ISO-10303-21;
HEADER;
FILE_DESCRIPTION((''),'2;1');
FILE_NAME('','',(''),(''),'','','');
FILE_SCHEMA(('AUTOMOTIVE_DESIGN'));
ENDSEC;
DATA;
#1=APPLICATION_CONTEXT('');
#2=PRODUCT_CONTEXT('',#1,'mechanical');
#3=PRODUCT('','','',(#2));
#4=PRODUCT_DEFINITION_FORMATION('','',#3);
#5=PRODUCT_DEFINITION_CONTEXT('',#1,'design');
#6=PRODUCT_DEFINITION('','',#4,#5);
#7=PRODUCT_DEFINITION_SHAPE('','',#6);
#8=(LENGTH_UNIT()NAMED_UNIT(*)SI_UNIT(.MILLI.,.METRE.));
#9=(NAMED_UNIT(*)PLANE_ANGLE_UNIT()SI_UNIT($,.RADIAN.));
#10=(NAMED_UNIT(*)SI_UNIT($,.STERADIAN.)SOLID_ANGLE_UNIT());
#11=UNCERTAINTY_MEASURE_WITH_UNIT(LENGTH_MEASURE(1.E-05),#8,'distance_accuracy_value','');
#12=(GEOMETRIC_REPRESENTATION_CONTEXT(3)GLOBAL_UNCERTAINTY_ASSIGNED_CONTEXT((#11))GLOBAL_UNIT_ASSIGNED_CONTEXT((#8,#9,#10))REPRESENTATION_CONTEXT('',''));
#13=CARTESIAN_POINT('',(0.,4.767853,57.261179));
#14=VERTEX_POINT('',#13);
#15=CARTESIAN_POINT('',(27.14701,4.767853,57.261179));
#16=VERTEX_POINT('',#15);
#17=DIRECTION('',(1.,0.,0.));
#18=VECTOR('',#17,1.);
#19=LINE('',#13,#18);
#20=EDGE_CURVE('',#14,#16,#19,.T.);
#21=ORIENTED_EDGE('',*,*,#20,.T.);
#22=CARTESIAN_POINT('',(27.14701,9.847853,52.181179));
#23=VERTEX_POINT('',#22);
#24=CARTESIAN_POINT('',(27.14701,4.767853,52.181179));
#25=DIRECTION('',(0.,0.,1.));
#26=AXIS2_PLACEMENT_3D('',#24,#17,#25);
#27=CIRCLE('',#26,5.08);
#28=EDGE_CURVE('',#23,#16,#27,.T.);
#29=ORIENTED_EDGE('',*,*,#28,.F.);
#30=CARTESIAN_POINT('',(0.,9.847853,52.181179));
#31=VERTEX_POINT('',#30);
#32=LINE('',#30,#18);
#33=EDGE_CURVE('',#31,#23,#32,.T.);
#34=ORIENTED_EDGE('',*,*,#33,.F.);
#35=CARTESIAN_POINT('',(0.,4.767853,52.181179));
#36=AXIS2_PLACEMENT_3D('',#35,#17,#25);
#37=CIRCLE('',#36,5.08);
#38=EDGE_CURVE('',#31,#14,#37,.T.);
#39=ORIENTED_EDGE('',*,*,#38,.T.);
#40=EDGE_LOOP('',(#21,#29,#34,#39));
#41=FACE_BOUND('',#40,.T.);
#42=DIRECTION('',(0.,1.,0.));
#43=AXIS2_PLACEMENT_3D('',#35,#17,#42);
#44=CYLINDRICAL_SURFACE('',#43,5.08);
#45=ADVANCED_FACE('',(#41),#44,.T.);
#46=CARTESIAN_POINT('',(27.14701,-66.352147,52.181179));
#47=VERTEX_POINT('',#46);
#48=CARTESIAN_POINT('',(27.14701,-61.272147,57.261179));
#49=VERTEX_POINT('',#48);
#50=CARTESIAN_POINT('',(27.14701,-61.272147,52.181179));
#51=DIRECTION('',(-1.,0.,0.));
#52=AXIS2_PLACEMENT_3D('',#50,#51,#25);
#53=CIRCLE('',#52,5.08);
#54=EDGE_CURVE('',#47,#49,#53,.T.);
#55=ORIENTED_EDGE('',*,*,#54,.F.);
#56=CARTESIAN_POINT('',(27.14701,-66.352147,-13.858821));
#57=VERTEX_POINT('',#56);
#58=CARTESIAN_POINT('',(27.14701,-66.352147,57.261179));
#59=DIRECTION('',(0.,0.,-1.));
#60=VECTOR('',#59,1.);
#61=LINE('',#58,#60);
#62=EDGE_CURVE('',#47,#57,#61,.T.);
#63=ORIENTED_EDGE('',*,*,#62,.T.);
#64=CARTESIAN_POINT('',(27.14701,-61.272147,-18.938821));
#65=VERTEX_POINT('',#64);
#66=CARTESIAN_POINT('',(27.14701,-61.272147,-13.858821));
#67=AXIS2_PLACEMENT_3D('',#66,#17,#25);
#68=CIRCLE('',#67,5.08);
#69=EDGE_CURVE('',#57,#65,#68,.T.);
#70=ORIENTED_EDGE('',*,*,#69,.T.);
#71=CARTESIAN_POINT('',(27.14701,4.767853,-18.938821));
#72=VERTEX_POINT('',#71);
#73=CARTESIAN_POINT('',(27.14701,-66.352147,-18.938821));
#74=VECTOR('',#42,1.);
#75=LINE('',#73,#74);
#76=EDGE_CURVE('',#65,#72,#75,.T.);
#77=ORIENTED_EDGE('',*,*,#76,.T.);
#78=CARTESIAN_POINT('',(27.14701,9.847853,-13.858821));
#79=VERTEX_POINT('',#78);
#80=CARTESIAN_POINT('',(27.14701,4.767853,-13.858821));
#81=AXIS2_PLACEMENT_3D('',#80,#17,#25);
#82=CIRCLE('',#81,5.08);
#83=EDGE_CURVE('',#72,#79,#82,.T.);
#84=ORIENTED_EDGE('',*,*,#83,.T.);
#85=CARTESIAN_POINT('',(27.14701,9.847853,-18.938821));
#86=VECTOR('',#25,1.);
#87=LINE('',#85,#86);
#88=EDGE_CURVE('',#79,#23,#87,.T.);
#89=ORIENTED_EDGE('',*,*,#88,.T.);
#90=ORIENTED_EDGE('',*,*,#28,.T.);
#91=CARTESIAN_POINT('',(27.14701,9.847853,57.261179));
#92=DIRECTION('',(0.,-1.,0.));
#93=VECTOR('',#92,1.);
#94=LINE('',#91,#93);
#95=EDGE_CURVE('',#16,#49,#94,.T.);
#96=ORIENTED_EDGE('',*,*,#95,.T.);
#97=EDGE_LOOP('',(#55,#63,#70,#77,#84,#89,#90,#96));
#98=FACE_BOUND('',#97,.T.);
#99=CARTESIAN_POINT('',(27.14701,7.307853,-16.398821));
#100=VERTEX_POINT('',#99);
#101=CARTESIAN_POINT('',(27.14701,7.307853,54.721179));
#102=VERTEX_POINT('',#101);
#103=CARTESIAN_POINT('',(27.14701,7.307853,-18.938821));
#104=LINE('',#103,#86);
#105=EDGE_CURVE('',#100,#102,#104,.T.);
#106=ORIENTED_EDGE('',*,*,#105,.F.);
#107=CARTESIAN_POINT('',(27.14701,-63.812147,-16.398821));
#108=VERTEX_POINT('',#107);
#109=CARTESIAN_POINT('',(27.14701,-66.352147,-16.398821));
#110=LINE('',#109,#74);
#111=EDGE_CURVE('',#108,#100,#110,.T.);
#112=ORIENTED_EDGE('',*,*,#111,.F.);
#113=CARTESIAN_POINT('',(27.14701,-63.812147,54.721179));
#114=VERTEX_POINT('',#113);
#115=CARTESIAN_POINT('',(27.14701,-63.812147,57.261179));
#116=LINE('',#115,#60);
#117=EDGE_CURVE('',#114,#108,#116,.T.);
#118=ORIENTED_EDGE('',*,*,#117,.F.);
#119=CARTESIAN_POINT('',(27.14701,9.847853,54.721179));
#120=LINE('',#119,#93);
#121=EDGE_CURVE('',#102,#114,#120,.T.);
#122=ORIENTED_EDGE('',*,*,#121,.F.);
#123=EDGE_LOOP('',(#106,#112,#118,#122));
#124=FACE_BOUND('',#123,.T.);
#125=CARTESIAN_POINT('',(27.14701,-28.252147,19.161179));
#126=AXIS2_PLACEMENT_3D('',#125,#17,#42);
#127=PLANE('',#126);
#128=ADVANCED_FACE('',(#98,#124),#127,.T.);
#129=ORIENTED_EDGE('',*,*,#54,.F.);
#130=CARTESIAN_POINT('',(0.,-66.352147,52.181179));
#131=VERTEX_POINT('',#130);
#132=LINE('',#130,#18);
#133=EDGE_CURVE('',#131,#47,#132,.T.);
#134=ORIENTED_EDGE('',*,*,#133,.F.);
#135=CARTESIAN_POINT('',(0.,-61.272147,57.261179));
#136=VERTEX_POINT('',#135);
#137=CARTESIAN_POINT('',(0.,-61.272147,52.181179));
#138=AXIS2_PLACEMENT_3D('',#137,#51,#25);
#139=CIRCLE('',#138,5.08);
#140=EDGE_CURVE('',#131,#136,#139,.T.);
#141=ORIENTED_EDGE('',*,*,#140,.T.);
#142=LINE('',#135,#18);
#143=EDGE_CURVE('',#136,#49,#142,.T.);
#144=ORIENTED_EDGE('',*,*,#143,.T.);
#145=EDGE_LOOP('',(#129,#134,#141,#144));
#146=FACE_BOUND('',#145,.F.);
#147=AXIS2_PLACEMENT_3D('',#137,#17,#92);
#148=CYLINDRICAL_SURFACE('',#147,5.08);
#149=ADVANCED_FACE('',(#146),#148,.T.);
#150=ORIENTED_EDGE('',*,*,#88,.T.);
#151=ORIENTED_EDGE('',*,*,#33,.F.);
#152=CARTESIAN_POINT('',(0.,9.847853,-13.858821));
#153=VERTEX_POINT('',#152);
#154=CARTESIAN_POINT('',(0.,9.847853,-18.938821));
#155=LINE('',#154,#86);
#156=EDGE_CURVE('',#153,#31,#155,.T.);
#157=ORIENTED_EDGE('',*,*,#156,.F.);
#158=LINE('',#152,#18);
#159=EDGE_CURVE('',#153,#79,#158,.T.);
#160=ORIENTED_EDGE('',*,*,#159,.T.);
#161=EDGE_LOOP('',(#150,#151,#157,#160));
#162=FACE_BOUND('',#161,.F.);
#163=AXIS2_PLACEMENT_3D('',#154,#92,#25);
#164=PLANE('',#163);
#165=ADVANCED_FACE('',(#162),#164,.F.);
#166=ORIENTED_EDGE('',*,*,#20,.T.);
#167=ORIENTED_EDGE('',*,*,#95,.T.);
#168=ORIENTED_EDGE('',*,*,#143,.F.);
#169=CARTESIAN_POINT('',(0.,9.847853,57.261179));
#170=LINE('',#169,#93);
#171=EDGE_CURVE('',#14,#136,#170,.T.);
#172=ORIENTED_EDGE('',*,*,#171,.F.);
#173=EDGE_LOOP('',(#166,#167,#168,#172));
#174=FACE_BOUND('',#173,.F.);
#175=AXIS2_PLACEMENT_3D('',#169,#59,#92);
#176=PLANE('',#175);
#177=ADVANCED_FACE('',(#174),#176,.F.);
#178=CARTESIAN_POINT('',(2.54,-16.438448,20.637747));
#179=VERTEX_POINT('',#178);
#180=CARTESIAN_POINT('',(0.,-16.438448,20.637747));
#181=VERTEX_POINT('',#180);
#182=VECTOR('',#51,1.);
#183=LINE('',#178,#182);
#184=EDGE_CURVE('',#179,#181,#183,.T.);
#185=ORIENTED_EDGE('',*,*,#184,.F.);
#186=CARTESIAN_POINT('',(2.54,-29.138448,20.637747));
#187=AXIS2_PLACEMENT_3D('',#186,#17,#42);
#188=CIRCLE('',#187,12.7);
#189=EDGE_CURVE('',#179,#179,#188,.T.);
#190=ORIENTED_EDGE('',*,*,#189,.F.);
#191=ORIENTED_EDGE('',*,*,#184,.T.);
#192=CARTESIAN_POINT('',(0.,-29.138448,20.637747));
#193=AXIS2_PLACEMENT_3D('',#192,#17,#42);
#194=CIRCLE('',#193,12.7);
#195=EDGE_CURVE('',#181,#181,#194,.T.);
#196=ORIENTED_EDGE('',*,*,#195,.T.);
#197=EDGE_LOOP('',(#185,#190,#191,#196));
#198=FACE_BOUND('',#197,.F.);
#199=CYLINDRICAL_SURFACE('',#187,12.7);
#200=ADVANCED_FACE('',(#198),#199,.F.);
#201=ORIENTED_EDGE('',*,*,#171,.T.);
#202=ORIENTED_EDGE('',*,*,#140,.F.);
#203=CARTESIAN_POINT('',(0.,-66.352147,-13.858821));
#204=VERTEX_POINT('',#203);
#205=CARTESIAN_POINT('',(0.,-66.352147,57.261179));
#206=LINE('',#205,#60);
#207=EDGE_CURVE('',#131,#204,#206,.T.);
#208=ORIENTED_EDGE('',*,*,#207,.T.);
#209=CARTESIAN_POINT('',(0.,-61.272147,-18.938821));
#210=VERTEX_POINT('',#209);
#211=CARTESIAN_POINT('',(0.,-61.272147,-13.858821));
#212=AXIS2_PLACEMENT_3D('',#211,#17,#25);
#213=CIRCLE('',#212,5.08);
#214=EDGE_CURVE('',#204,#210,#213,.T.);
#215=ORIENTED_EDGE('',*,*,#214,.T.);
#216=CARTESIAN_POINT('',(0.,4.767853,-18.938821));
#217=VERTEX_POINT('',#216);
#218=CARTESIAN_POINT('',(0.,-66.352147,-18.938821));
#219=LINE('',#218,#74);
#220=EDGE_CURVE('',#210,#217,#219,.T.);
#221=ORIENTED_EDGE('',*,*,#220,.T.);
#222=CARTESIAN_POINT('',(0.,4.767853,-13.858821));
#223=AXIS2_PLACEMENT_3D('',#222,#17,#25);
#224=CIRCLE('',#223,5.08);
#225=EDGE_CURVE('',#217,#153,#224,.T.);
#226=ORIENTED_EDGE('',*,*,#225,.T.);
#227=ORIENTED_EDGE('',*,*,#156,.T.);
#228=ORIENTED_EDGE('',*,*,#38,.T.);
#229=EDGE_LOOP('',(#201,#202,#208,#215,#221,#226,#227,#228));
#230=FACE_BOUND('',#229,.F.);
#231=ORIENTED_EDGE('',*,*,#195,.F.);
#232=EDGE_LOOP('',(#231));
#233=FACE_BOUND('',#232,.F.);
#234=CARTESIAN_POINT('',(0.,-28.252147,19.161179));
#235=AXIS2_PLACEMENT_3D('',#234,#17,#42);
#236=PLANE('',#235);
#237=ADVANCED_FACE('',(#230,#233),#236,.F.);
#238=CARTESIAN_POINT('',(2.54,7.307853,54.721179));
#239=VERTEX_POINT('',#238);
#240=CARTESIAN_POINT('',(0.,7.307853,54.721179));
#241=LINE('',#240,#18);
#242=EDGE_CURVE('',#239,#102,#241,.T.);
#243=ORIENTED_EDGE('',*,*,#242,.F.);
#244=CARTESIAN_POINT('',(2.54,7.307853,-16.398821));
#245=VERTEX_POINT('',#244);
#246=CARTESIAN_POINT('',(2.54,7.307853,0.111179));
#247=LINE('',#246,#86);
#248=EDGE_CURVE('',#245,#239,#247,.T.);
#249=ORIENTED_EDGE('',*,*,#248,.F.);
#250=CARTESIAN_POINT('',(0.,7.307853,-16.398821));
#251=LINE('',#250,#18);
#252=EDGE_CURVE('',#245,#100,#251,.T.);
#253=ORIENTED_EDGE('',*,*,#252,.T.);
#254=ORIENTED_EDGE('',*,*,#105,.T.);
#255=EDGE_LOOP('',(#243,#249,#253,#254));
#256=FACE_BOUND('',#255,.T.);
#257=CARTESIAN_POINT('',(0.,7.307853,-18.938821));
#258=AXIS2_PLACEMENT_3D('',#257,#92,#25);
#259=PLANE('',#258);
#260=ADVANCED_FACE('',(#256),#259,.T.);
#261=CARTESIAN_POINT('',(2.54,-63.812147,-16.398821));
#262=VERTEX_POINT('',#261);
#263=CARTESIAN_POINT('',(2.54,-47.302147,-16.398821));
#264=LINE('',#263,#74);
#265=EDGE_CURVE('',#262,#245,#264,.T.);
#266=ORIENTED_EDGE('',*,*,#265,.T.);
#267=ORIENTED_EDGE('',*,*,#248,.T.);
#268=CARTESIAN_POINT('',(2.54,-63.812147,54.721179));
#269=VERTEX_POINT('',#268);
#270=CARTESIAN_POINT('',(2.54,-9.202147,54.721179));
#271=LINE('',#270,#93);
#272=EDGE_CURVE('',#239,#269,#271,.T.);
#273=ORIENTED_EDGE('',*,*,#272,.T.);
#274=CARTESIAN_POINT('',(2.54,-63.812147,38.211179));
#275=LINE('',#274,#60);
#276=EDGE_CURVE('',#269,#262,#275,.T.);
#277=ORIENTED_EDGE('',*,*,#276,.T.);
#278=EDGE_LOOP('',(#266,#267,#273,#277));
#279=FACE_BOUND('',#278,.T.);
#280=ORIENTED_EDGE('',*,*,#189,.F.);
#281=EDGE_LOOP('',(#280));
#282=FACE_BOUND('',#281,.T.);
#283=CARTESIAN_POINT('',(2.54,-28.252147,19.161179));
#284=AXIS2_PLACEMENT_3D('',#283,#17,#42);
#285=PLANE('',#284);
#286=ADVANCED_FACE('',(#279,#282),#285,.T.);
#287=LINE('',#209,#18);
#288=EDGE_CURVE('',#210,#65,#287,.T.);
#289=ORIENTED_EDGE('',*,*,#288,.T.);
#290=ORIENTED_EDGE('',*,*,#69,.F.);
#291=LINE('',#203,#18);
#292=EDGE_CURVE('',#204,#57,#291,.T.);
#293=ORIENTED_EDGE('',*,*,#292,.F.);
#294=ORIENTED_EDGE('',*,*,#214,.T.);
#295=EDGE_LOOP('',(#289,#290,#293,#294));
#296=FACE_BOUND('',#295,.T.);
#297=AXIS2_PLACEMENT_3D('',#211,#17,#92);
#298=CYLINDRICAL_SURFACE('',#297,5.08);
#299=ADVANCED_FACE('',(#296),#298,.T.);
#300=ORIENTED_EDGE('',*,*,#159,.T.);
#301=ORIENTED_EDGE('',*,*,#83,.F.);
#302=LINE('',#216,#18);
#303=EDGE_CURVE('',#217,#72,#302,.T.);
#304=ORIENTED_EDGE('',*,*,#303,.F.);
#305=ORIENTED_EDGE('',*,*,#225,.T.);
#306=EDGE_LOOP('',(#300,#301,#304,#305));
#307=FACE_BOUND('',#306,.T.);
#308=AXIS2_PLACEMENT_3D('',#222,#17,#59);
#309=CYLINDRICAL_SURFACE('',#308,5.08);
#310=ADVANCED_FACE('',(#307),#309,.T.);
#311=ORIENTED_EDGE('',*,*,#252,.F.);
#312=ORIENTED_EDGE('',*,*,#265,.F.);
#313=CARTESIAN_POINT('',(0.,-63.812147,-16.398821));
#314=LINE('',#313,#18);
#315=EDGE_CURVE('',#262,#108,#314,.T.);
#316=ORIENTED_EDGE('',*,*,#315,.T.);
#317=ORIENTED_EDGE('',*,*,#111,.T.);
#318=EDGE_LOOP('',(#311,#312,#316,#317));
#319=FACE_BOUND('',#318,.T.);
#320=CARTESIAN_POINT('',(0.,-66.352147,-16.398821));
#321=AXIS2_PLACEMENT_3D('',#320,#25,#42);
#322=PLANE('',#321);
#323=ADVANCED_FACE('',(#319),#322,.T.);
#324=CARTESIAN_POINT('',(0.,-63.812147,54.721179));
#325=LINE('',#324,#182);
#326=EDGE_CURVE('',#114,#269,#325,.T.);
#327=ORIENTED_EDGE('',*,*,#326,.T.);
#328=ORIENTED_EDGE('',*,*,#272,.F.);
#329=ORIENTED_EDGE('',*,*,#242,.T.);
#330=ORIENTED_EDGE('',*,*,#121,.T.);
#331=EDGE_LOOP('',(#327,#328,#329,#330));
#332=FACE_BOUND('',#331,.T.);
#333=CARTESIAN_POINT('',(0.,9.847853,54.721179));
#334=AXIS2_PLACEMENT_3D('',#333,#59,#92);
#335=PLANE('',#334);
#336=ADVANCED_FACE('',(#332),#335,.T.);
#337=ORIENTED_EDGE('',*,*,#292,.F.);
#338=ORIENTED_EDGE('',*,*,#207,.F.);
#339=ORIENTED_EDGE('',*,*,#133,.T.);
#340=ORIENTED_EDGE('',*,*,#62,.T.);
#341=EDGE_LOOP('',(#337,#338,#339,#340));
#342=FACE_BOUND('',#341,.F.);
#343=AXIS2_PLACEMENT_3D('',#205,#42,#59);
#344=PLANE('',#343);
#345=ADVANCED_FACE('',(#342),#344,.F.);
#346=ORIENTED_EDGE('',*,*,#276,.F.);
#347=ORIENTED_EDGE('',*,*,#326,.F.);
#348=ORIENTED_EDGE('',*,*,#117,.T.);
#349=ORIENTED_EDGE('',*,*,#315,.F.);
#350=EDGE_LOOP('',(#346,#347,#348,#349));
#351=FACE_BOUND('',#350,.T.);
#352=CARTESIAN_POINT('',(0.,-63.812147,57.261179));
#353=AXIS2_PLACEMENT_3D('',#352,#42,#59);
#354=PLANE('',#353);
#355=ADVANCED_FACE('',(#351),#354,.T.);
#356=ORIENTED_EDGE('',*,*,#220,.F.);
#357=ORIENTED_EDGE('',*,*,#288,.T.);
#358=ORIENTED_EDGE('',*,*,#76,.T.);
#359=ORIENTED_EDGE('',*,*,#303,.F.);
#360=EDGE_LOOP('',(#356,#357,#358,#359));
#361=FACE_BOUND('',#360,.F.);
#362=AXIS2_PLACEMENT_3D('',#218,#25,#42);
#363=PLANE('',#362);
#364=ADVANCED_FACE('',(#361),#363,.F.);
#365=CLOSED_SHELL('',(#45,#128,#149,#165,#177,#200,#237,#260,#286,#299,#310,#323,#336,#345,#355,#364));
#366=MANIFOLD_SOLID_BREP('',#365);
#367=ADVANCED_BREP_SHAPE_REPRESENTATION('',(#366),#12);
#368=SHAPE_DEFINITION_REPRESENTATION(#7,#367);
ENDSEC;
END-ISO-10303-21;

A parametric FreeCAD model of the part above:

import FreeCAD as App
import Part
import Sketcher
Q = App.Units.Quantity


def edges_at(feature, points):
    """Names of the edges that pass closest to the given points."""
    edges = feature.Shape.Edges
    near = lambda p: min(range(len(edges)), key=lambda i: edges[i].distToShape(Part.Vertex(*p))[0])
    return sorted({f"Edge{near(p) + 1}" for p in points})


def faces_at(feature, points):
    """Names of the faces that lie closest to the given points."""
    faces = feature.Shape.Faces
    near = lambda p: min(range(len(faces)), key=lambda i: faces[i].distToShape(Part.Vertex(*p))[0])
    return sorted({f"Face{near(p) + 1}" for p in points})


def add_polygon(sketch, points):
    """Adds a closed chain of lines whose ends are joined by coincident constraints."""
    first, n = sketch.GeometryCount, len(points)
    for a, b in zip(points, points[1:] + points[:1]):
        sketch.addGeometry(Part.LineSegment(App.Vector(*a, 0), App.Vector(*b, 0)), False)
    for i in range(n):
        sketch.addConstraint(Sketcher.Constraint("Coincident", first + i, 2, first + (i + 1) % n, 1))

doc = App.newDocument("Part")
body = doc.addObject("PartDesign::Body", "Body")

# Sketch on YZ plane
sketch1 = doc.addObject("Sketcher::SketchObject", "Sketch")
body.addObject(sketch1)
sketch1.AttachmentSupport = (doc.YZ_Plane, [""])
sketch1.MapMode = "FlatFace"
add_polygon(sketch1, [(-66, 57), (-66, -19), (10, -19), (10, 57)])  # lines 0-3
sketch1.addConstraint(Sketcher.Constraint("Vertical", 0))
sketch1.addConstraint(Sketcher.Constraint("Horizontal", 1))
sketch1.addConstraint(Sketcher.Constraint("Vertical", 2))
sketch1.addConstraint(Sketcher.Constraint("Horizontal", 3))
sketch1.addConstraint(Sketcher.Constraint("Equal", 3, 0))
sketch1.addConstraint(Sketcher.Constraint("DistanceX", 1, 1, 1, 2, Q("3 in")))
sketch1.addConstraint(Sketcher.Constraint("DistanceY", 0, 2, -1, 1, Q("18.938821 mm")))
sketch1.addConstraint(Sketcher.Constraint("DistanceX", 0, 2, -1, 1, Q("66.352147 mm")))
pad1 = doc.addObject("PartDesign::Pad", "Pad")
body.addObject(pad1)
pad1.Profile = sketch1
pad1.Length = 27.14701
doc.recompute()

thickness = doc.addObject("PartDesign::Thickness", "Thickness")
body.addObject(thickness)
thickness.Base = (pad1, faces_at(pad1, [(27.147, -28.252, 19.161)]))
thickness.Value = Q("0.1 in")
thickness.Reversed = True
thickness.Join = "Arc"
doc.recompute()

fillet = doc.addObject("PartDesign::Fillet", "Fillet")
body.addObject(fillet)
fillet.Base = (thickness, edges_at(thickness, [
    (13.574, 9.848, -18.939),
    (13.574, 9.848, 57.261),
    (13.574, -66.352, -18.939),
    (13.574, -66.352, 57.261),
]))
fillet.Radius = Q("0.2 in")

# Sketch on YZ plane
sketch2 = doc.addObject("Sketcher::SketchObject", "Sketch001")
body.addObject(sketch2)
sketch2.AttachmentSupport = (doc.YZ_Plane, [""])
sketch2.MapMode = "FlatFace"
sketch2.AttachmentOffset = App.Placement(App.Vector(0, 0, 0.1 * 25.4), App.Rotation())
sketch2.addGeometry(Part.Circle(App.Vector(-29, 21, 0), App.Vector(0, 0, 1), 13), False)
sketch2.addConstraint(Sketcher.Constraint("Diameter", 0, Q("1 in")))
sketch2.addConstraint(Sketcher.Constraint("DistanceX", 0, 3, -1, 1, Q("29.138448 mm")))
sketch2.addConstraint(Sketcher.Constraint("DistanceY", -1, 1, 0, 3, Q("20.637747 mm")))
pocket1 = doc.addObject("PartDesign::Pocket", "Pocket")
body.addObject(pocket1)
pocket1.Profile = sketch2
pocket1.Length = 51.567206

doc.recompute()
